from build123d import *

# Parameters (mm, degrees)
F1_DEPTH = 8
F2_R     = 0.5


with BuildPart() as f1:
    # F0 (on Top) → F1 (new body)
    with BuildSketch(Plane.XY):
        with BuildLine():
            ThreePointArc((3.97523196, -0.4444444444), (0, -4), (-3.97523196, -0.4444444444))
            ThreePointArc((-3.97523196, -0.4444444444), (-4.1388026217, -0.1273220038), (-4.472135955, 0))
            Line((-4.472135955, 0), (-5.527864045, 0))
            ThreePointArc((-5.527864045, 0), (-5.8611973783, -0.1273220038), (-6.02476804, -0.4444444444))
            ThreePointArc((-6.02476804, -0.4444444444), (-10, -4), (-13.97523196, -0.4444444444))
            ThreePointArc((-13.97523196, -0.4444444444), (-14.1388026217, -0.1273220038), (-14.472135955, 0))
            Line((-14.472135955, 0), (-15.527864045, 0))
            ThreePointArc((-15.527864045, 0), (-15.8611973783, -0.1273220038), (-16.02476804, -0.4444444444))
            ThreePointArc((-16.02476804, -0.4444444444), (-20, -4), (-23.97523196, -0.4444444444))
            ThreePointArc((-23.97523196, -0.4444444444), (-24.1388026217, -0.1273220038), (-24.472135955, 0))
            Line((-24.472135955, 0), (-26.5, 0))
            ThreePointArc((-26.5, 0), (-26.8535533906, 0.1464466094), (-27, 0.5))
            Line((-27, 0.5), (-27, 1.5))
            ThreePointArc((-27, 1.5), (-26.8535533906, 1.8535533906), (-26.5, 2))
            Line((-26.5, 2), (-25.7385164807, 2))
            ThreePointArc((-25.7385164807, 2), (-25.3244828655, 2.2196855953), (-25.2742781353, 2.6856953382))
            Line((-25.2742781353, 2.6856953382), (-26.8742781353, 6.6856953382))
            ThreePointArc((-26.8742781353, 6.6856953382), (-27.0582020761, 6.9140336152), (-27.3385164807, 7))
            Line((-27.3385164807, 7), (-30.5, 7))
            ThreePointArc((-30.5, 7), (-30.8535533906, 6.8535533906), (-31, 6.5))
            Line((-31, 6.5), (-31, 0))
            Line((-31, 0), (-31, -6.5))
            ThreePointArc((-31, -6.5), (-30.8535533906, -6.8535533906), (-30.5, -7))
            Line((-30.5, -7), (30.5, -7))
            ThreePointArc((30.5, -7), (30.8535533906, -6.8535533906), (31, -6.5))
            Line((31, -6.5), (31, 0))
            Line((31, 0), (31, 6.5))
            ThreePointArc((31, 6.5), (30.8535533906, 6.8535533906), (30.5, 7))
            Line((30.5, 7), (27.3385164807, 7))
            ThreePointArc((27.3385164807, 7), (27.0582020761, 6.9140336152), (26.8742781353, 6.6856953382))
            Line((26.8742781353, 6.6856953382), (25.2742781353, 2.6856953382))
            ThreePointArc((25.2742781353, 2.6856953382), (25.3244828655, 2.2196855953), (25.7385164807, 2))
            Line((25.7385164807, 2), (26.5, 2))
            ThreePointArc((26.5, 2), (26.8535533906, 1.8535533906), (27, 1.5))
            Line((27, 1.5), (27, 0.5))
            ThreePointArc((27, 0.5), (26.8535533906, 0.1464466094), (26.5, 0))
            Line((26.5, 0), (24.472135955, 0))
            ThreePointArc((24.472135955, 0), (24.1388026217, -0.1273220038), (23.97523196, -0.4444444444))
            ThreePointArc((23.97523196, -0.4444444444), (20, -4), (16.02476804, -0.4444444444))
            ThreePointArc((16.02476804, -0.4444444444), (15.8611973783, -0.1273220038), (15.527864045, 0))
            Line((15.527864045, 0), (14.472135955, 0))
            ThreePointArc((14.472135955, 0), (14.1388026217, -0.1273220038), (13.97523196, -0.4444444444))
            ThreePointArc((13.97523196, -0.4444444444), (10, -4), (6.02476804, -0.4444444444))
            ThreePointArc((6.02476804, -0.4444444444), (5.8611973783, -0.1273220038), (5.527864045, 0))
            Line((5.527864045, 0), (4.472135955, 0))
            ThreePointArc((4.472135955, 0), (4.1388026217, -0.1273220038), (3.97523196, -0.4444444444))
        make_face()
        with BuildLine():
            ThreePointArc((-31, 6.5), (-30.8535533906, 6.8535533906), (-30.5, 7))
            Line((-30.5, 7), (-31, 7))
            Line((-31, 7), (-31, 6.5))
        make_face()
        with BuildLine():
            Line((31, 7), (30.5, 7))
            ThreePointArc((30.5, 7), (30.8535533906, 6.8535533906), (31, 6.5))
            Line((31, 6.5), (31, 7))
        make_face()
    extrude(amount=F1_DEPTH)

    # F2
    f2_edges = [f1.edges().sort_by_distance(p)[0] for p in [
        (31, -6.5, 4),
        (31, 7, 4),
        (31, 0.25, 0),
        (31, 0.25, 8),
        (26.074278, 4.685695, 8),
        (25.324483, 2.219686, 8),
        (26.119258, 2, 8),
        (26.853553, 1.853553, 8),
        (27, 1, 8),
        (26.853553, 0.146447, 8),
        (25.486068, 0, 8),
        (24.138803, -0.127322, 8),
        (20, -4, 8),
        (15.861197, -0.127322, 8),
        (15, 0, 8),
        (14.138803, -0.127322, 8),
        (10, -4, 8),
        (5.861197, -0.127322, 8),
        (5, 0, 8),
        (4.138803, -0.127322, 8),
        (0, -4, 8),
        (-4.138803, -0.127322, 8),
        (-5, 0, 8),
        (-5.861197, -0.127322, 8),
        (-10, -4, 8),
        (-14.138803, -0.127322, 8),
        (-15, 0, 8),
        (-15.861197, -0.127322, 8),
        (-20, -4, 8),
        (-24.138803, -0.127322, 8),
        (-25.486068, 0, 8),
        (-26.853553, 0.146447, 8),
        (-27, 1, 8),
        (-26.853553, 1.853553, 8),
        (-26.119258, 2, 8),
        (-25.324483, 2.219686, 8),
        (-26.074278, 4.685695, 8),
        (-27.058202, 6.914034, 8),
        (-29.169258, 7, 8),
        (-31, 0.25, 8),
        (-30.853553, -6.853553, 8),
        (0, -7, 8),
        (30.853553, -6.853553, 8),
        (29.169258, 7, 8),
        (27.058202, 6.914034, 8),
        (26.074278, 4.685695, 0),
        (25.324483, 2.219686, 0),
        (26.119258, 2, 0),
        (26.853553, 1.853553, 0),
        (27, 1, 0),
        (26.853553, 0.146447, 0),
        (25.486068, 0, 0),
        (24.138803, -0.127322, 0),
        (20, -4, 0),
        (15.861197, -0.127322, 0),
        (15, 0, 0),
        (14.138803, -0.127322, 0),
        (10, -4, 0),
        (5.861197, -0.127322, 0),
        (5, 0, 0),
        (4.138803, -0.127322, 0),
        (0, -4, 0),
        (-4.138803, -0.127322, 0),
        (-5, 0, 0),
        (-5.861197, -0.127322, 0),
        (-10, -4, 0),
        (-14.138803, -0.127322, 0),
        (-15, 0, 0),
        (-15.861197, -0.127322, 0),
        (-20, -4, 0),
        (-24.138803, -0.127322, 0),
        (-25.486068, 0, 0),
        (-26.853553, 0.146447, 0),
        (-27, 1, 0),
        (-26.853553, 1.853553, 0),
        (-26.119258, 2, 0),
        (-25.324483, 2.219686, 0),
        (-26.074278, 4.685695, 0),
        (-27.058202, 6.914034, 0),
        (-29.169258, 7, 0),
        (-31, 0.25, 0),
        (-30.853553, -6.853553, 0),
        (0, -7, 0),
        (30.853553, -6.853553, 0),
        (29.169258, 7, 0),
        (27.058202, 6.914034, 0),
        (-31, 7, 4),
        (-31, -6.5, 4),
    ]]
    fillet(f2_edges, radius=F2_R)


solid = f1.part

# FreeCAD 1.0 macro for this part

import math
import FreeCAD as App
import Part
import Sketcher
from FreeCAD import Vector


def edges_at(feature, points):
    """Names of the edges that pass closest to the given points."""
    edges = feature.Shape.Edges
    near = lambda p: min(range(len(edges)), key=lambda i: edges[i].distToShape(Part.Vertex(*p))[0])
    return sorted({f"Edge{near(p) + 1}" for p in points})

doc = App.newDocument("Part")
body = doc.addObject("PartDesign::Body", "Body")

sketch1 = body.newObject("Sketcher::SketchObject", "Sketch")
sketch1.AttachmentSupport = (doc.getObject("XY_Plane"), [""])
sketch1.MapMode = "FlatFace"
sketch1.addGeometry([
    Part.ArcOfCircle(Part.Circle(Vector(0, 0, 0), Vector(0, 0, 1), 4), math.radians(-174), math.radians(-6)),
    Part.ArcOfCircle(Part.Circle(Vector(-4.5, -0.5, 0), Vector(0, 0, 1), 0.5), math.radians(6), math.radians(90)),
    Part.LineSegment(Vector(-4.5, 0, 0), Vector(-5.5, 0, 0)),
    Part.ArcOfCircle(Part.Circle(Vector(-5.5, -0.5, 0), Vector(0, 0, 1), 0.5), math.radians(90), math.radians(174)),
    Part.ArcOfCircle(Part.Circle(Vector(-10, 0, 0), Vector(0, 0, 1), 4), math.radians(-174), math.radians(-6)),
    Part.ArcOfCircle(Part.Circle(Vector(-14.5, -0.5, 0), Vector(0, 0, 1), 0.5), math.radians(6), math.radians(90)),
    Part.LineSegment(Vector(-14.5, 0, 0), Vector(-15.5, 0, 0)),
    Part.ArcOfCircle(Part.Circle(Vector(-15.5, -0.5, 0), Vector(0, 0, 1), 0.5), math.radians(90), math.radians(174)),
    Part.ArcOfCircle(Part.Circle(Vector(-20, 0, 0), Vector(0, 0, 1), 4), math.radians(-174), math.radians(-6)),
    Part.ArcOfCircle(Part.Circle(Vector(-24.5, -0.5, 0), Vector(0, 0, 1), 0.5), math.radians(6), math.radians(90)),
    Part.LineSegment(Vector(-24.5, 0, 0), Vector(-26.5, 0, 0)),
    Part.ArcOfCircle(Part.Circle(Vector(-26.5, 0.5, 0), Vector(0, 0, 1), 0.5), math.radians(180), math.radians(270)),
    Part.LineSegment(Vector(-27, 0.5, 0), Vector(-27, 1.5, 0)),
    Part.ArcOfCircle(Part.Circle(Vector(-26.5, 1.5, 0), Vector(0, 0, 1), 0.5), math.radians(90), math.radians(180)),
    Part.LineSegment(Vector(-26.5, 2, 0), Vector(-25.7, 2, 0)),
    Part.ArcOfCircle(Part.Circle(Vector(-25.7, 2.5, 0), Vector(0, 0, 1), 0.5), math.radians(-90), math.radians(22)),
    Part.LineSegment(Vector(-25.3, 2.7, 0), Vector(-26.9, 6.7, 0)),
    Part.ArcOfCircle(Part.Circle(Vector(-27.3, 6.5, 0), Vector(0, 0, 1), 0.5), math.radians(22), math.radians(90)),
    Part.LineSegment(Vector(-27.3, 7, 0), Vector(-31, 7, 0)),
    Part.LineSegment(Vector(-31, 7, 0), Vector(-31, -6.5, 0)),
    Part.ArcOfCircle(Part.Circle(Vector(-30.5, -6.5, 0), Vector(0, 0, 1), 0.5), math.radians(180), math.radians(270)),
    Part.LineSegment(Vector(-30.5, -7, 0), Vector(30.5, -7, 0)),
    Part.ArcOfCircle(Part.Circle(Vector(30.5, -6.5, 0), Vector(0, 0, 1), 0.5), math.radians(-90), math.radians(0)),
    Part.LineSegment(Vector(31, -6.5, 0), Vector(31, 7, 0)),
    Part.LineSegment(Vector(31, 7, 0), Vector(27.3, 7, 0)),
    Part.ArcOfCircle(Part.Circle(Vector(27.3, 6.5, 0), Vector(0, 0, 1), 0.5), math.radians(90), math.radians(158)),
    Part.LineSegment(Vector(26.9, 6.7, 0), Vector(25.3, 2.7, 0)),
    Part.ArcOfCircle(Part.Circle(Vector(25.7, 2.5, 0), Vector(0, 0, 1), 0.5), math.radians(158), math.radians(270)),
    Part.LineSegment(Vector(25.7, 2, 0), Vector(26.5, 2, 0)),
    Part.ArcOfCircle(Part.Circle(Vector(26.5, 1.5, 0), Vector(0, 0, 1), 0.5), math.radians(0), math.radians(90)),
    Part.LineSegment(Vector(27, 1.5, 0), Vector(27, 0.5, 0)),
    Part.ArcOfCircle(Part.Circle(Vector(26.5, 0.5, 0), Vector(0, 0, 1), 0.5), math.radians(-90), math.radians(0)),
    Part.LineSegment(Vector(26.5, 0, 0), Vector(24.5, 0, 0)),
    Part.ArcOfCircle(Part.Circle(Vector(24.5, -0.5, 0), Vector(0, 0, 1), 0.5), math.radians(90), math.radians(174)),
    Part.ArcOfCircle(Part.Circle(Vector(20, 0, 0), Vector(0, 0, 1), 4), math.radians(-174), math.radians(-6)),
    Part.ArcOfCircle(Part.Circle(Vector(15.5, -0.5, 0), Vector(0, 0, 1), 0.5), math.radians(6), math.radians(90)),
    Part.LineSegment(Vector(15.5, 0, 0), Vector(14.5, 0, 0)),
    Part.ArcOfCircle(Part.Circle(Vector(14.5, -0.5, 0), Vector(0, 0, 1), 0.5), math.radians(90), math.radians(174)),
    Part.ArcOfCircle(Part.Circle(Vector(10, 0, 0), Vector(0, 0, 1), 4), math.radians(-174), math.radians(-6)),
    Part.ArcOfCircle(Part.Circle(Vector(5.5, -0.5, 0), Vector(0, 0, 1), 0.5), math.radians(6), math.radians(90)),
    Part.LineSegment(Vector(5.5, 0, 0), Vector(4.5, 0, 0)),
    Part.ArcOfCircle(Part.Circle(Vector(4.5, -0.5, 0), Vector(0, 0, 1), 0.5), math.radians(90), math.radians(174)),
], False)
sketch1.addConstraint([
    Sketcher.Constraint("Tangent", 0, 1, 1, 1),
    Sketcher.Constraint("Tangent", 1, 2, 2, 1),
    Sketcher.Constraint("Tangent", 2, 2, 3, 1),
    Sketcher.Constraint("Tangent", 3, 2, 4, 2),
    Sketcher.Constraint("Tangent", 4, 1, 5, 1),
    Sketcher.Constraint("Tangent", 5, 2, 6, 1),
    Sketcher.Constraint("Tangent", 6, 2, 7, 1),
    Sketcher.Constraint("Tangent", 7, 2, 8, 2),
    Sketcher.Constraint("Tangent", 8, 1, 9, 1),
    Sketcher.Constraint("Tangent", 9, 2, 10, 1),
    Sketcher.Constraint("Tangent", 10, 2, 11, 2),
    Sketcher.Constraint("Tangent", 11, 1, 12, 1),
    Sketcher.Constraint("Tangent", 12, 2, 13, 2),
    Sketcher.Constraint("Tangent", 13, 1, 14, 1),
    Sketcher.Constraint("Tangent", 14, 2, 15, 1),
    Sketcher.Constraint("Tangent", 15, 2, 16, 1),
    Sketcher.Constraint("Tangent", 16, 2, 17, 1),
    Sketcher.Constraint("Tangent", 17, 2, 18, 1),
    Sketcher.Constraint("Coincident", 18, 2, 19, 1),
    Sketcher.Constraint("Tangent", 19, 2, 20, 1),
    Sketcher.Constraint("Tangent", 20, 2, 21, 1),
    Sketcher.Constraint("Tangent", 21, 2, 22, 1),
    Sketcher.Constraint("Tangent", 22, 2, 23, 1),
    Sketcher.Constraint("Coincident", 23, 2, 24, 1),
    Sketcher.Constraint("Tangent", 24, 2, 25, 1),
    Sketcher.Constraint("Tangent", 25, 2, 26, 1),
    Sketcher.Constraint("Tangent", 26, 2, 27, 1),
    Sketcher.Constraint("Tangent", 27, 2, 28, 1),
    Sketcher.Constraint("Tangent", 28, 2, 29, 2),
    Sketcher.Constraint("Tangent", 29, 1, 30, 1),
    Sketcher.Constraint("Tangent", 30, 2, 31, 2),
    Sketcher.Constraint("Tangent", 31, 1, 32, 1),
    Sketcher.Constraint("Tangent", 32, 2, 33, 1),
    Sketcher.Constraint("Tangent", 33, 2, 34, 2),
    Sketcher.Constraint("Tangent", 34, 1, 35, 1),
    Sketcher.Constraint("Tangent", 35, 2, 36, 1),
    Sketcher.Constraint("Tangent", 36, 2, 37, 1),
    Sketcher.Constraint("Tangent", 37, 2, 38, 2),
    Sketcher.Constraint("Tangent", 38, 1, 39, 1),
    Sketcher.Constraint("Tangent", 39, 2, 40, 1),
    Sketcher.Constraint("Tangent", 40, 2, 41, 1),
    Sketcher.Constraint("Tangent", 41, 2, 0, 2),
    Sketcher.Constraint("Horizontal", 2),
    Sketcher.Constraint("Horizontal", 6),
    Sketcher.Constraint("Horizontal", 10),
    Sketcher.Constraint("Vertical", 12),
    Sketcher.Constraint("Horizontal", 14),
    Sketcher.Constraint("Horizontal", 18),
    Sketcher.Constraint("Vertical", 19),
    Sketcher.Constraint("Horizontal", 21),
    Sketcher.Constraint("Vertical", 23),
    Sketcher.Constraint("Horizontal", 24),
    Sketcher.Constraint("Horizontal", 28),
    Sketcher.Constraint("Vertical", 30),
    Sketcher.Constraint("Horizontal", 32),
    Sketcher.Constraint("Horizontal", 36),
    Sketcher.Constraint("Horizontal", 40),
    Sketcher.Constraint("Coincident", 0, 3, -1, 1),
    Sketcher.Constraint("Equal", 1, 3),
    Sketcher.Constraint("Equal", 0, 4),
    Sketcher.Constraint("Equal", 3, 5),
    Sketcher.Constraint("Equal", 5, 7),
    Sketcher.Constraint("Equal", 4, 8),
    Sketcher.Constraint("Equal", 7, 9),
    Sketcher.Constraint("Equal", 9, 11),
    Sketcher.Constraint("Equal", 11, 13),
    Sketcher.Constraint("Equal", 13, 15),
    Sketcher.Constraint("Equal", 15, 17),
    Sketcher.Constraint("Equal", 17, 20),
    Sketcher.Constraint("Equal", 20, 22),
    Sketcher.Constraint("Equal", 22, 25),
    Sketcher.Constraint("Equal", 25, 27),
    Sketcher.Constraint("Equal", 27, 29),
    Sketcher.Constraint("Equal", 29, 31),
    Sketcher.Constraint("Equal", 31, 33),
    Sketcher.Constraint("Equal", 8, 34),
    Sketcher.Constraint("Equal", 33, 35),
    Sketcher.Constraint("Equal", 35, 37),
    Sketcher.Constraint("Equal", 34, 38),
    Sketcher.Constraint("Equal", 37, 39),
    Sketcher.Constraint("Equal", 39, 41),
    Sketcher.Constraint("Symmetric", 8, 3, 34, 3, -1, 1),
    Sketcher.Constraint("Symmetric", 4, 3, 38, 3, -1, 1),
    Sketcher.Constraint("Symmetric", 10, 2, 31, 1, -1, 1),
    Sketcher.Constraint("Symmetric", 6, 2, 35, 2, -1, 1),
    Sketcher.Constraint("Symmetric", 2, 2, 39, 2, -1, 1),
    Sketcher.Constraint("Symmetric", 17, 3, 25, 3, -2),
    Sketcher.Constraint("Symmetric", 15, 3, 27, 3, -2),
    Sketcher.Constraint("Symmetric", 9, 3, 33, 3, -2),
    Sketcher.Constraint("PointOnObject", 4, 3, -1),
    Sketcher.Constraint("Equal", 2, 6),
    Sketcher.Constraint("Equal", 18, 24),
    Sketcher.Constraint("Radius", 0, 4.0),
    Sketcher.Constraint("Radius", 1, 0.5),
    Sketcher.Constraint("DistanceX", 21, 1, 21, 2, 61.0),
    Sketcher.Constraint("DistanceY", 12, 1, 12, 2, 1.0),
    Sketcher.Constraint("DistanceY", 19, 2, 19, 1, 13.5),
    Sketcher.Constraint("DistanceX", 4, 3, -1, 1, 10.0),
    Sketcher.Constraint("DistanceX", 11, 1, -1, 1, 27.0),
    Sketcher.Constraint("DistanceY", -1, 1, 17, 2, 7.0),
    Sketcher.Constraint("Distance", 16, 4.308132),
    Sketcher.Constraint("DistanceX", 14, 1, 14, 2, 0.761484),
])
pad1 = body.newObject("PartDesign::Pad", "Pad")
pad1.Profile = sketch1
pad1.Length = 8
doc.recompute()

fillet = body.newObject("PartDesign::Fillet", "Fillet")
fillet.Base = (pad1, edges_at(pad1, [
    (31, -6.5, 4),
    (31, 7, 4),
    (31, 0.25, 0),
    (31, 0.25, 8),
    (26.074, 4.686, 8),
    (25.324, 2.22, 8),
    (26.119, 2, 8),
    (26.854, 1.854, 8),
    (27, 1, 8),
    (26.854, 0.146, 8),
    (25.486, 0, 8),
    (24.139, -0.127, 8),
    (20, -4, 8),
    (15.861, -0.127, 8),
    (15, 0, 8),
    (14.139, -0.127, 8),
    (10, -4, 8),
    (5.861, -0.127, 8),
    (5, 0, 8),
    (4.139, -0.127, 8),
    (0, -4, 8),
    (-4.139, -0.127, 8),
    (-5, 0, 8),
    (-5.861, -0.127, 8),
    (-10, -4, 8),
    (-14.139, -0.127, 8),
    (-15, 0, 8),
    (-15.861, -0.127, 8),
    (-20, -4, 8),
    (-24.139, -0.127, 8),
    (-25.486, 0, 8),
    (-26.854, 0.146, 8),
    (-27, 1, 8),
    (-26.854, 1.854, 8),
    (-26.119, 2, 8),
    (-25.324, 2.22, 8),
    (-26.074, 4.686, 8),
    (-27.058, 6.914, 8),
    (-29.169, 7, 8),
    (-31, 0.25, 8),
    (-30.854, -6.854, 8),
    (0, -7, 8),
    (30.854, -6.854, 8),
    (29.169, 7, 8),
    (27.058, 6.914, 8),
    (26.074, 4.686, 0),
    (25.324, 2.22, 0),
    (26.119, 2, 0),
    (26.854, 1.854, 0),
    (27, 1, 0),
    (26.854, 0.146, 0),
    (25.486, 0, 0),
    (24.139, -0.127, 0),
    (20, -4, 0),
    (15.861, -0.127, 0),
    (15, 0, 0),
    (14.139, -0.127, 0),
    (10, -4, 0),
    (5.861, -0.127, 0),
    (5, 0, 0),
    (4.139, -0.127, 0),
    (0, -4, 0),
    (-4.139, -0.127, 0),
    (-5, 0, 0),
    (-5.861, -0.127, 0),
    (-10, -4, 0),
    (-14.139, -0.127, 0),
    (-15, 0, 0),
    (-15.861, -0.127, 0),
    (-20, -4, 0),
    (-24.139, -0.127, 0),
    (-25.486, 0, 0),
    (-26.854, 0.146, 0),
    (-27, 1, 0),
    (-26.854, 1.854, 0),
    (-26.119, 2, 0),
    (-25.324, 2.22, 0),
    (-26.074, 4.686, 0),
    (-27.058, 6.914, 0),
    (-29.169, 7, 0),
    (-31, 0.25, 0),
    (-30.854, -6.854, 0),
    (0, -7, 0),
    (30.854, -6.854, 0),
    (29.169, 7, 0),
    (27.058, 6.914, 0),
    (-31, 7, 4),
    (-31, -6.5, 4),
]))
fillet.Radius = 0.5

doc.recompute()
